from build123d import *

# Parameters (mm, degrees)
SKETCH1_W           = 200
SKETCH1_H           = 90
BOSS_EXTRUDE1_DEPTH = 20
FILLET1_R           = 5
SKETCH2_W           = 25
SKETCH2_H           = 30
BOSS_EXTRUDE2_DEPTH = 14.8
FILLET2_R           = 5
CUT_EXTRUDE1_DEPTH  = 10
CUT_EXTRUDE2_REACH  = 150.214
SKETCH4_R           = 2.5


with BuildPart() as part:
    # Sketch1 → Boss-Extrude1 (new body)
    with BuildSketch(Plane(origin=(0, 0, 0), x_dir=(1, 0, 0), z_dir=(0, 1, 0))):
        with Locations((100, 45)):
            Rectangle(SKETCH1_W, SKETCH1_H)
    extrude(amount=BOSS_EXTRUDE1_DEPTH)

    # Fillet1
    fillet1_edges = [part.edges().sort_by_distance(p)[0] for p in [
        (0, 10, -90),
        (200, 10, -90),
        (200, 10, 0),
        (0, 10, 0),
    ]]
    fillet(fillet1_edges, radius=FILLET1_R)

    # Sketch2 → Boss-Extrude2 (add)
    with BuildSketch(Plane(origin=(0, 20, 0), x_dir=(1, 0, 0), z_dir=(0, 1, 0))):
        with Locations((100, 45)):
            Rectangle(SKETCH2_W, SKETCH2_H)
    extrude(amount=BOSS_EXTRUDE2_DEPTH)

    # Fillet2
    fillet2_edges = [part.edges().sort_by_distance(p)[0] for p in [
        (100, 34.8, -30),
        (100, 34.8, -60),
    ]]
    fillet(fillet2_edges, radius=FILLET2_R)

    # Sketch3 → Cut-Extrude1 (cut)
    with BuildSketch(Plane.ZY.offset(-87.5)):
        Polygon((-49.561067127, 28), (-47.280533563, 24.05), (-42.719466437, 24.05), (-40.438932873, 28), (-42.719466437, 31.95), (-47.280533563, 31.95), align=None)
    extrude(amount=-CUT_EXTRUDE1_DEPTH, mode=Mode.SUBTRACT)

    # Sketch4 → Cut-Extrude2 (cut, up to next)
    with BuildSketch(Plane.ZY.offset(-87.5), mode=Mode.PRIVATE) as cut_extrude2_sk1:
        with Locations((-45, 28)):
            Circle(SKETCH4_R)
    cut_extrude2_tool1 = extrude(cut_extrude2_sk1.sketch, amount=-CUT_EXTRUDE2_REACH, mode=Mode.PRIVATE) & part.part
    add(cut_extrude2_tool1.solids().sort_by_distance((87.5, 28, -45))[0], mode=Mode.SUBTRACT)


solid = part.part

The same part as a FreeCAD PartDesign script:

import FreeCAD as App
import Part
import Sketcher
from FreeCAD import Vector
Q = App.Units.Quantity


def edges_at(feature, points):
    """Names of the edges that pass closest to the given points."""
    edges = feature.Shape.Edges
    near = lambda p: min(range(len(edges)), key=lambda i: edges[i].distToShape(Part.Vertex(*p))[0])
    return sorted({f"Edge{near(p) + 1}" for p in points})


def add_polygon(sketch, points):
    """Adds a closed chain of lines whose ends are joined by coincident constraints."""
    first, n = sketch.GeometryCount, len(points)
    for a, b in zip(points, points[1:] + points[:1]):
        sketch.addGeometry(Part.LineSegment(App.Vector(*a, 0), App.Vector(*b, 0)), False)
    for i in range(n):
        sketch.addConstraint(Sketcher.Constraint("Coincident", first + i, 2, first + (i + 1) % n, 1))

doc = App.newDocument("Part")
params = doc.addObject("Spreadsheet::Sheet", "Params")
for row, (alias, value) in enumerate([
    ("sketch1_width", "200 mm"),
    ("sketch1_height", "90 mm"),
    ("pad1_length", "20 mm"),
    ("fillet_radius", "5 mm"),
    ("sketch2_width", "25 mm"),
    ("sketch2_height", "30 mm"),
    ("pad2_length", "14.8 mm"),
    ("fillet2_radius", "5 mm"),
    ("pocket1_length", "10 mm"),
    ("sketch4_diameter", "5 mm"),
    ("pocket2_length", "25 mm"),
], start=1):
    params.set(f"A{row}", alias)
    params.set(f"B{row}", "=" + value)
    params.setAlias(f"B{row}", alias)

body = doc.addObject("PartDesign::Body", "Body")

sketch1 = body.newObject("Sketcher::SketchObject", "Sketch")
sketch1.AttachmentSupport = (doc.getObject("XZ_Plane"), [""])
sketch1.MapMode = "FlatFace"
add_polygon(sketch1, [(0, -90), (0, 0), (200, 0), (200, -90)])
sketch1.addConstraint([
    Sketcher.Constraint("Vertical", 0),
    Sketcher.Constraint("Horizontal", 1),
    Sketcher.Constraint("Vertical", 2),
    Sketcher.Constraint("Horizontal", 3),
    Sketcher.Constraint("Coincident", 0, 2, -1, 1),
    Sketcher.Constraint("DistanceX", 1, 1, 1, 2, 200.0),
    Sketcher.Constraint("DistanceY", 0, 1, 0, 2, 90.0),
])
sketch1.setExpression("Constraints[9]", "Params.sketch1_width")
sketch1.setExpression("Constraints[10]", "Params.sketch1_height")
pad1 = body.newObject("PartDesign::Pad", "Pad")
pad1.Profile = sketch1
pad1.setExpression("Length", "Params.pad1_length")
pad1.Reversed = True
doc.recompute()

fillet = body.newObject("PartDesign::Fillet", "Fillet")
fillet.Base = (pad1, edges_at(pad1, [
    (0, 10, -90),
    (200, 10, -90),
    (200, 10, 0),
    (0, 10, 0),
]))
fillet.setExpression("Radius", "Params.fillet_radius")

sketch2 = body.newObject("Sketcher::SketchObject", "Sketch001")
sketch2.AttachmentSupport = (doc.getObject("XZ_Plane"), [""])
sketch2.MapMode = "FlatFace"
sketch2.AttachmentOffset = App.Placement(Vector(0, 0, -20), App.Rotation())
add_polygon(sketch2, [(87.5, -60), (87.5, -30), (112.5, -30), (112.5, -60)])
sketch2.addConstraint([
    Sketcher.Constraint("Vertical", 0),
    Sketcher.Constraint("Horizontal", 1),
    Sketcher.Constraint("Vertical", 2),
    Sketcher.Constraint("Horizontal", 3),
    Sketcher.Constraint("DistanceX", 1, 1, 1, 2, 25.0),
    Sketcher.Constraint("DistanceY", 0, 1, 0, 2, 30.0),
    Sketcher.Constraint("DistanceY", 0, 2, -1, 1, 30.0),
    Sketcher.Constraint("DistanceX", -1, 1, 0, 2, 87.5),
])
sketch2.setExpression("Constraints[8]", "Params.sketch2_width")
sketch2.setExpression("Constraints[9]", "Params.sketch2_height")
pad2 = body.newObject("PartDesign::Pad", "Pad001")
pad2.Profile = sketch2
pad2.setExpression("Length", "Params.pad2_length")
pad2.Reversed = True
doc.recompute()

fillet2 = body.newObject("PartDesign::Fillet", "Fillet001")
fillet2.Base = (pad2, edges_at(pad2, [(100, 34.8, -30), (100, 34.8, -60)]))
fillet2.setExpression("Radius", "Params.fillet2_radius")

sketch3 = body.newObject("Sketcher::SketchObject", "Sketch002")
sketch3.AttachmentSupport = (doc.getObject("YZ_Plane"), [""])
sketch3.MapMode = "FlatFace"
sketch3.AttachmentOffset = App.Placement(Vector(0, 0, 87.5), App.Rotation())
add_polygon(sketch3, [(28, -49.561067), (24.05, -47.280534), (24.05, -42.719466), (28, -40.438933), (31.95, -42.719466), (31.95, -47.280534)])
sketch3.addConstraint([
    Sketcher.Constraint("Vertical", 1),
    Sketcher.Constraint("Vertical", 4),
    Sketcher.Constraint("Parallel", 0, 3),
    Sketcher.Constraint("Parallel", 2, 5),
    Sketcher.Constraint("Horizontal", 1, 2, 3, 2),
    Sketcher.Constraint("Horizontal", 0, 2, 4, 2),
    Sketcher.Constraint("Vertical", 2, 2, 5, 2),
    Sketcher.Constraint("Angle", 0, Q("150 deg")),
    Sketcher.Constraint("DistanceX", -1, 1, 2, 2, 28.0),
    Sketcher.Constraint("DistanceX", 1, 2, 3, 2, 7.9),
    Sketcher.Constraint("DistanceY", 0, 2, 2, 2, 6.841601),
    Sketcher.Constraint("DistanceY", 0, 2, -1, 1, 47.280534),
])
pocket1 = body.newObject("PartDesign::Pocket", "Pocket")
pocket1.Profile = sketch3
pocket1.setExpression("Length", "Params.pocket1_length")
pocket1.Reversed = True

sketch4 = body.newObject("Sketcher::SketchObject", "Sketch003")
sketch4.AttachmentSupport = (doc.getObject("YZ_Plane"), [""])
sketch4.MapMode = "FlatFace"
sketch4.AttachmentOffset = App.Placement(Vector(0, 0, 87.5), App.Rotation())
sketch4.addGeometry(Part.Circle(Vector(28, -45, 0), Vector(0, 0, 1), 2.5), False)
sketch4.addConstraint([
    Sketcher.Constraint("Diameter", 0, 5.0),
    Sketcher.Constraint("DistanceX", -1, 1, 0, 3, 28.0),
    Sketcher.Constraint("DistanceY", 0, 3, -1, 1, 45.0),
])
sketch4.setExpression("Constraints[0]", "Params.sketch4_diameter")
pocket2 = body.newObject("PartDesign::Pocket", "Pocket001")
pocket2.Profile = sketch4
pocket2.setExpression("Length", "Params.pocket2_length")
pocket2.Reversed = True

doc.recompute()
